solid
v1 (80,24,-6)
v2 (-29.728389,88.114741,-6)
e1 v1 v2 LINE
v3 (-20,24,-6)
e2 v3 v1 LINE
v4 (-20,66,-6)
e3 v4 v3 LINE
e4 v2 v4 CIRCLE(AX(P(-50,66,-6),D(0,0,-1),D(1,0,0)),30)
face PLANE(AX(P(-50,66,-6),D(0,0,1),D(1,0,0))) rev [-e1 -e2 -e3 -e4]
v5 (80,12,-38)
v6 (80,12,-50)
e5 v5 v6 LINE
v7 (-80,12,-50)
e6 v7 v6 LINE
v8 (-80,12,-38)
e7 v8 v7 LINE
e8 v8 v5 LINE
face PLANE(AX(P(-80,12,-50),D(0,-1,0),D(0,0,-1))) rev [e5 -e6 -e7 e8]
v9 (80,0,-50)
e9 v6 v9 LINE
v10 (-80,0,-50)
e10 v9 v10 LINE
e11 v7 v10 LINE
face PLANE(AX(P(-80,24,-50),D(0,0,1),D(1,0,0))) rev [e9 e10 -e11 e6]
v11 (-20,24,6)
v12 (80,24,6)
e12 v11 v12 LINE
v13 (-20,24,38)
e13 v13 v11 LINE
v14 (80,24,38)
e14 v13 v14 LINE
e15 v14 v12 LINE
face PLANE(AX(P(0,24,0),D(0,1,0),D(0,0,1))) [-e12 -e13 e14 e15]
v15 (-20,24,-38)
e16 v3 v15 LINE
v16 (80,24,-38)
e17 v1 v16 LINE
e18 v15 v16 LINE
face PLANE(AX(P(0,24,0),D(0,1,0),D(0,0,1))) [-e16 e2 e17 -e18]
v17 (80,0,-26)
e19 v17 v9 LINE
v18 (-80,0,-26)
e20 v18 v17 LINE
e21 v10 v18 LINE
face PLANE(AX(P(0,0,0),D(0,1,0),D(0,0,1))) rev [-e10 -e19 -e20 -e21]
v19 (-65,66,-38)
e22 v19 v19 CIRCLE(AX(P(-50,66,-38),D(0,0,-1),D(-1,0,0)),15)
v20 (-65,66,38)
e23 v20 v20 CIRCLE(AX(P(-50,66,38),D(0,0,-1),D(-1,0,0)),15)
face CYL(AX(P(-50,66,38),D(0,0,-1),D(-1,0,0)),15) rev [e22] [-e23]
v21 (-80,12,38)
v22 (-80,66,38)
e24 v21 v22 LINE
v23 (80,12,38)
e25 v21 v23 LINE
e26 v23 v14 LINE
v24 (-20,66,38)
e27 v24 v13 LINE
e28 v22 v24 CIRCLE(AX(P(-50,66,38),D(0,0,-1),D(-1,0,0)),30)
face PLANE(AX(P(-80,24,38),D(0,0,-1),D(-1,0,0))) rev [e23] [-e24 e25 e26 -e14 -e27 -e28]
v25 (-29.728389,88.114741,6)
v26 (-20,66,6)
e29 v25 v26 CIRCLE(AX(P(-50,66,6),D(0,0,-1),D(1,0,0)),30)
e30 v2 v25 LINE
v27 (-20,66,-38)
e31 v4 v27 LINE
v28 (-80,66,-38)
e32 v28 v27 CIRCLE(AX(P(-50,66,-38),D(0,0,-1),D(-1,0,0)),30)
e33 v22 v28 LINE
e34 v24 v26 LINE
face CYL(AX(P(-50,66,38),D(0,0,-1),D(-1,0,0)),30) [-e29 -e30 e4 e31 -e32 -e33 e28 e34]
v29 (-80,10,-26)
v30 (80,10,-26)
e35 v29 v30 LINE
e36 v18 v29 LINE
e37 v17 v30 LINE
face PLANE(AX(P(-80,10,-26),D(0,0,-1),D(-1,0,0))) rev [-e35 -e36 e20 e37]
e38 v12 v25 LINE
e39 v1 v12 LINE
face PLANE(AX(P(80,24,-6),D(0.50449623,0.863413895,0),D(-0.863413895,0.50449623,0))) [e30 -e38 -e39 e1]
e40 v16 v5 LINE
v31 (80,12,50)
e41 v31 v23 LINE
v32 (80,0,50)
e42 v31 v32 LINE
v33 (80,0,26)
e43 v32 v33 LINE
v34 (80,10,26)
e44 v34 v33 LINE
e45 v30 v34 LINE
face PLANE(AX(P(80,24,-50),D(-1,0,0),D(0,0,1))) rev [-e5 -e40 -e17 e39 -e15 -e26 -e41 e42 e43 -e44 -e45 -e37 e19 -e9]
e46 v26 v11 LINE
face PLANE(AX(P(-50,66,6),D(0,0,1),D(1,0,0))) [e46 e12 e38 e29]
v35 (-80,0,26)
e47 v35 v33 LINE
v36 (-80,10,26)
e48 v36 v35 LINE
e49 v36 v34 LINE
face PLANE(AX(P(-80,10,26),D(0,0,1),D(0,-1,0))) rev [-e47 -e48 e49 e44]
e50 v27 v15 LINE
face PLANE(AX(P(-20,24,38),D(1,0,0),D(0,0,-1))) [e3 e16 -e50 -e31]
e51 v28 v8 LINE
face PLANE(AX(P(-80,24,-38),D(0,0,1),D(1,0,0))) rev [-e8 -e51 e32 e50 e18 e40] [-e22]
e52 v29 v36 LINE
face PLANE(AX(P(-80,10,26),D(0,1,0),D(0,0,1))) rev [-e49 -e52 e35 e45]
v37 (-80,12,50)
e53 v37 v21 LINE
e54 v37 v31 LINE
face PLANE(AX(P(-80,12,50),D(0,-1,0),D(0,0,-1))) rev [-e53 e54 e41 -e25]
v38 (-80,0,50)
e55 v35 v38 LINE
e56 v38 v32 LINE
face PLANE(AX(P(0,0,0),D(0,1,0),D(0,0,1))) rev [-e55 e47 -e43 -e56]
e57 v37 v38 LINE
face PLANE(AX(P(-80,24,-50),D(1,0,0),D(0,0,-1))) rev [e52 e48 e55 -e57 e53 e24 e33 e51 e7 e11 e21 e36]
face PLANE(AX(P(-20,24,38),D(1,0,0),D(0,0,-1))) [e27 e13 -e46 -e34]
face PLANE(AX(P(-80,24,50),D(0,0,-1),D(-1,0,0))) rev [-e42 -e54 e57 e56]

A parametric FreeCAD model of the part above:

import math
import FreeCAD as App
import Part
import Sketcher
Q = App.Units.Quantity


def add_polygon(sketch, points):
    """Adds a closed chain of lines whose ends are joined by coincident constraints."""
    first, n = sketch.GeometryCount, len(points)
    for a, b in zip(points, points[1:] + points[:1]):
        sketch.addGeometry(Part.LineSegment(App.Vector(*a, 0), App.Vector(*b, 0)), False)
    for i in range(n):
        sketch.addConstraint(Sketcher.Constraint("Coincident", first + i, 2, first + (i + 1) % n, 1))

doc = App.newDocument("Part")
body = doc.addObject("PartDesign::Body", "Body")

sketch1 = doc.addObject("Sketcher::SketchObject", "Sketch")
body.addObject(sketch1)
sketch1.AttachmentSupport = (doc.XZ_Plane, [""])
sketch1.MapMode = "FlatFace"
add_polygon(sketch1, [(-80, -50), (-80, 50), (80, 50), (80, -50)])
sketch1.addConstraint(Sketcher.Constraint("Vertical", 0))
sketch1.addConstraint(Sketcher.Constraint("Horizontal", 1))
sketch1.addConstraint(Sketcher.Constraint("Vertical", 2))
sketch1.addConstraint(Sketcher.Constraint("Horizontal", 3))
sketch1.addConstraint(Sketcher.Constraint("Symmetric", 0, 2, 2, 2, -1, 1))
sketch1.addConstraint(Sketcher.Constraint("DistanceX", 1, 1, 1, 2, Q("160 mm")))
sketch1.addConstraint(Sketcher.Constraint("DistanceY", 0, 1, 0, 2, Q("100 mm")))
pad1 = doc.addObject("PartDesign::Pad", "Pad")
body.addObject(pad1)
pad1.Profile = sketch1
pad1.Length = 24
pad1.Reversed = True

sketch2 = doc.addObject("Sketcher::SketchObject", "Sketch001")
body.addObject(sketch2)
sketch2.AttachmentSupport = (doc.YZ_Plane, [""])
sketch2.MapMode = "FlatFace"
sketch2.AttachmentOffset = App.Placement(App.Vector(0, 0, 80), App.Rotation())
add_polygon(sketch2, [(10, 26), (0, 26), (0, -26), (10, -26)])
sketch2.addConstraint(Sketcher.Constraint("Horizontal", 0))
sketch2.addConstraint(Sketcher.Constraint("Vertical", 1))
sketch2.addConstraint(Sketcher.Constraint("Horizontal", 2))
sketch2.addConstraint(Sketcher.Constraint("Vertical", 3))
sketch2.addConstraint(Sketcher.Constraint("Symmetric", 0, 2, 1, 2, -1, 1))
sketch2.addConstraint(Sketcher.Constraint("DistanceX", 0, 2, 0, 1, Q("10 mm")))
sketch2.addConstraint(Sketcher.Constraint("DistanceY", 1, 2, 1, 1, Q("52 mm")))
pocket1 = doc.addObject("PartDesign::Pocket", "Pocket")
body.addObject(pocket1)
pocket1.Profile = sketch2
pocket1.Length = 160

sketch3 = doc.addObject("Sketcher::SketchObject", "Sketch002")
body.addObject(sketch3)
sketch3.AttachmentSupport = (doc.YZ_Plane, [""])
sketch3.MapMode = "FlatFace"
sketch3.AttachmentOffset = App.Placement(App.Vector(0, 0, 80), App.Rotation())
add_polygon(sketch3, [(24, -38), (12, -38), (12, -50), (24, -50)])
sketch3.addConstraint(Sketcher.Constraint("Horizontal", 0))
sketch3.addConstraint(Sketcher.Constraint("Vertical", 1))
sketch3.addConstraint(Sketcher.Constraint("Horizontal", 2))
sketch3.addConstraint(Sketcher.Constraint("Vertical", 3))
sketch3.addConstraint(Sketcher.Constraint("Equal", 2, 1))
sketch3.addConstraint(Sketcher.Constraint("DistanceX", 0, 2, 0, 1, Q("12 mm")))
sketch3.addConstraint(Sketcher.Constraint("DistanceX", -1, 1, 0, 2, Q("12 mm")))
sketch3.addConstraint(Sketcher.Constraint("DistanceY", 0, 2, -1, 1, Q("38 mm")))
pocket2 = doc.addObject("PartDesign::Pocket", "Pocket001")
body.addObject(pocket2)
pocket2.Profile = sketch3
pocket2.Length = 160

sketch4 = doc.addObject("Sketcher::SketchObject", "Sketch003")
body.addObject(sketch4)
sketch4.AttachmentSupport = (doc.YZ_Plane, [""])
sketch4.MapMode = "FlatFace"
sketch4.AttachmentOffset = App.Placement(App.Vector(0, 0, 80), App.Rotation())
add_polygon(sketch4, [(24, 50), (12, 50), (12, 38), (24, 38)])
sketch4.addConstraint(Sketcher.Constraint("Horizontal", 0))
sketch4.addConstraint(Sketcher.Constraint("Vertical", 1))
sketch4.addConstraint(Sketcher.Constraint("Horizontal", 2))
sketch4.addConstraint(Sketcher.Constraint("Vertical", 3))
sketch4.addConstraint(Sketcher.Constraint("Equal", 2, 1))
sketch4.addConstraint(Sketcher.Constraint("DistanceX", 0, 2, 0, 1, Q("12 mm")))
sketch4.addConstraint(Sketcher.Constraint("DistanceX", -1, 1, 0, 2, Q("12 mm")))
sketch4.addConstraint(Sketcher.Constraint("DistanceY", -1, 1, 0, 2, Q("50 mm")))
pocket3 = doc.addObject("PartDesign::Pocket", "Pocket002")
body.addObject(pocket3)
pocket3.Profile = sketch4
pocket3.Length = 160

sketch5 = doc.addObject("Sketcher::SketchObject", "Sketch004")
body.addObject(sketch5)
sketch5.AttachmentSupport = (doc.XY_Plane, [""])
sketch5.MapMode = "FlatFace"
sketch5.AttachmentOffset = App.Placement(App.Vector(0, 0, -38), App.Rotation())
sketch5.addGeometry(Part.LineSegment(App.Vector(-80, 24, 0), App.Vector(-80, 66, 0)), False)
sketch5.addGeometry(Part.ArcOfCircle(Part.Circle(App.Vector(-50, 66, 0), App.Vector(0, 0, 1), 30), math.radians(0), math.radians(180)), False)
sketch5.addGeometry(Part.LineSegment(App.Vector(-20, 66, 0), App.Vector(-20, 24, 0)), False)
sketch5.addGeometry(Part.LineSegment(App.Vector(-20, 24, 0), App.Vector(-80, 24, 0)), False)
sketch5.addGeometry(Part.Circle(App.Vector(-50, 66, 0), App.Vector(0, 0, 1), 15), False)
sketch5.addConstraint(Sketcher.Constraint("Tangent", 0, 2, 1, 2))
sketch5.addConstraint(Sketcher.Constraint("Tangent", 1, 1, 2, 1))
sketch5.addConstraint(Sketcher.Constraint("Coincident", 2, 2, 3, 1))
sketch5.addConstraint(Sketcher.Constraint("Coincident", 3, 2, 0, 1))
sketch5.addConstraint(Sketcher.Constraint("Vertical", 0))
sketch5.addConstraint(Sketcher.Constraint("Vertical", 2))
sketch5.addConstraint(Sketcher.Constraint("Horizontal", 3))
sketch5.addConstraint(Sketcher.Constraint("Coincident", 4, 3, 1, 3))
sketch5.addConstraint(Sketcher.Constraint("Diameter", 4, Q("30 mm")))
sketch5.addConstraint(Sketcher.Constraint("Radius", 1, Q("30 mm")))
sketch5.addConstraint(Sketcher.Constraint("DistanceY", 0, 1, 0, 2, Q("42 mm")))
sketch5.addConstraint(Sketcher.Constraint("DistanceX", 1, 3, -1, 1, Q("50 mm")))
sketch5.addConstraint(Sketcher.Constraint("DistanceY", -1, 1, 1, 3, Q("66 mm")))
pad2 = doc.addObject("PartDesign::Pad", "Pad001")
body.addObject(pad2)
pad2.Profile = sketch5
pad2.Length = 76

sketch6 = doc.addObject("Sketcher::SketchObject", "Sketch005")
body.addObject(sketch6)
sketch6.AttachmentSupport = (doc.XY_Plane, [""])
sketch6.MapMode = "FlatFace"
sketch6.addGeometry(Part.LineSegment(App.Vector(-20, 24, 0), App.Vector(80, 24, 0)), False)
sketch6.addGeometry(Part.LineSegment(App.Vector(80, 24, 0), App.Vector(-30, 88, 0)), False)
sketch6.addGeometry(Part.ArcOfCircle(Part.Circle(App.Vector(-50, 66, 0), App.Vector(0, 0, 1), 30), math.radians(0), math.radians(47)), False)
sketch6.addGeometry(Part.LineSegment(App.Vector(-20, 66, 0), App.Vector(-20, 24, 0)), False)
sketch6.addConstraint(Sketcher.Constraint("Coincident", 0, 2, 1, 1))
sketch6.addConstraint(Sketcher.Constraint("Coincident", 1, 2, 2, 2))
sketch6.addConstraint(Sketcher.Constraint("Tangent", 2, 1, 3, 1))
sketch6.addConstraint(Sketcher.Constraint("Coincident", 3, 2, 0, 1))
sketch6.addConstraint(Sketcher.Constraint("Horizontal", 0))
sketch6.addConstraint(Sketcher.Constraint("Vertical", 3))
sketch6.addConstraint(Sketcher.Constraint("Radius", 2, Q("30 mm")))
sketch6.addConstraint(Sketcher.Constraint("DistanceX", 0, 1, 0, 2, Q("100 mm")))
sketch6.addConstraint(Sketcher.Constraint("DistanceY", 3, 2, 3, 1, Q("42 mm")))
sketch6.addConstraint(Sketcher.Constraint("DistanceX", 2, 3, -1, 1, Q("50 mm")))
sketch6.addConstraint(Sketcher.Constraint("DistanceY", -1, 1, 2, 3, Q("66 mm")))
sketch6.addConstraint(Sketcher.Constraint("Distance", 1, Q("127.086661 mm")))
pad3 = doc.addObject("PartDesign::Pad", "Pad002")
body.addObject(pad3)
pad3.Profile = sketch6
pad3.Type = "TwoLengths"
pad3.Length = 6
pad3.Length2 = 6

doc.recompute()
